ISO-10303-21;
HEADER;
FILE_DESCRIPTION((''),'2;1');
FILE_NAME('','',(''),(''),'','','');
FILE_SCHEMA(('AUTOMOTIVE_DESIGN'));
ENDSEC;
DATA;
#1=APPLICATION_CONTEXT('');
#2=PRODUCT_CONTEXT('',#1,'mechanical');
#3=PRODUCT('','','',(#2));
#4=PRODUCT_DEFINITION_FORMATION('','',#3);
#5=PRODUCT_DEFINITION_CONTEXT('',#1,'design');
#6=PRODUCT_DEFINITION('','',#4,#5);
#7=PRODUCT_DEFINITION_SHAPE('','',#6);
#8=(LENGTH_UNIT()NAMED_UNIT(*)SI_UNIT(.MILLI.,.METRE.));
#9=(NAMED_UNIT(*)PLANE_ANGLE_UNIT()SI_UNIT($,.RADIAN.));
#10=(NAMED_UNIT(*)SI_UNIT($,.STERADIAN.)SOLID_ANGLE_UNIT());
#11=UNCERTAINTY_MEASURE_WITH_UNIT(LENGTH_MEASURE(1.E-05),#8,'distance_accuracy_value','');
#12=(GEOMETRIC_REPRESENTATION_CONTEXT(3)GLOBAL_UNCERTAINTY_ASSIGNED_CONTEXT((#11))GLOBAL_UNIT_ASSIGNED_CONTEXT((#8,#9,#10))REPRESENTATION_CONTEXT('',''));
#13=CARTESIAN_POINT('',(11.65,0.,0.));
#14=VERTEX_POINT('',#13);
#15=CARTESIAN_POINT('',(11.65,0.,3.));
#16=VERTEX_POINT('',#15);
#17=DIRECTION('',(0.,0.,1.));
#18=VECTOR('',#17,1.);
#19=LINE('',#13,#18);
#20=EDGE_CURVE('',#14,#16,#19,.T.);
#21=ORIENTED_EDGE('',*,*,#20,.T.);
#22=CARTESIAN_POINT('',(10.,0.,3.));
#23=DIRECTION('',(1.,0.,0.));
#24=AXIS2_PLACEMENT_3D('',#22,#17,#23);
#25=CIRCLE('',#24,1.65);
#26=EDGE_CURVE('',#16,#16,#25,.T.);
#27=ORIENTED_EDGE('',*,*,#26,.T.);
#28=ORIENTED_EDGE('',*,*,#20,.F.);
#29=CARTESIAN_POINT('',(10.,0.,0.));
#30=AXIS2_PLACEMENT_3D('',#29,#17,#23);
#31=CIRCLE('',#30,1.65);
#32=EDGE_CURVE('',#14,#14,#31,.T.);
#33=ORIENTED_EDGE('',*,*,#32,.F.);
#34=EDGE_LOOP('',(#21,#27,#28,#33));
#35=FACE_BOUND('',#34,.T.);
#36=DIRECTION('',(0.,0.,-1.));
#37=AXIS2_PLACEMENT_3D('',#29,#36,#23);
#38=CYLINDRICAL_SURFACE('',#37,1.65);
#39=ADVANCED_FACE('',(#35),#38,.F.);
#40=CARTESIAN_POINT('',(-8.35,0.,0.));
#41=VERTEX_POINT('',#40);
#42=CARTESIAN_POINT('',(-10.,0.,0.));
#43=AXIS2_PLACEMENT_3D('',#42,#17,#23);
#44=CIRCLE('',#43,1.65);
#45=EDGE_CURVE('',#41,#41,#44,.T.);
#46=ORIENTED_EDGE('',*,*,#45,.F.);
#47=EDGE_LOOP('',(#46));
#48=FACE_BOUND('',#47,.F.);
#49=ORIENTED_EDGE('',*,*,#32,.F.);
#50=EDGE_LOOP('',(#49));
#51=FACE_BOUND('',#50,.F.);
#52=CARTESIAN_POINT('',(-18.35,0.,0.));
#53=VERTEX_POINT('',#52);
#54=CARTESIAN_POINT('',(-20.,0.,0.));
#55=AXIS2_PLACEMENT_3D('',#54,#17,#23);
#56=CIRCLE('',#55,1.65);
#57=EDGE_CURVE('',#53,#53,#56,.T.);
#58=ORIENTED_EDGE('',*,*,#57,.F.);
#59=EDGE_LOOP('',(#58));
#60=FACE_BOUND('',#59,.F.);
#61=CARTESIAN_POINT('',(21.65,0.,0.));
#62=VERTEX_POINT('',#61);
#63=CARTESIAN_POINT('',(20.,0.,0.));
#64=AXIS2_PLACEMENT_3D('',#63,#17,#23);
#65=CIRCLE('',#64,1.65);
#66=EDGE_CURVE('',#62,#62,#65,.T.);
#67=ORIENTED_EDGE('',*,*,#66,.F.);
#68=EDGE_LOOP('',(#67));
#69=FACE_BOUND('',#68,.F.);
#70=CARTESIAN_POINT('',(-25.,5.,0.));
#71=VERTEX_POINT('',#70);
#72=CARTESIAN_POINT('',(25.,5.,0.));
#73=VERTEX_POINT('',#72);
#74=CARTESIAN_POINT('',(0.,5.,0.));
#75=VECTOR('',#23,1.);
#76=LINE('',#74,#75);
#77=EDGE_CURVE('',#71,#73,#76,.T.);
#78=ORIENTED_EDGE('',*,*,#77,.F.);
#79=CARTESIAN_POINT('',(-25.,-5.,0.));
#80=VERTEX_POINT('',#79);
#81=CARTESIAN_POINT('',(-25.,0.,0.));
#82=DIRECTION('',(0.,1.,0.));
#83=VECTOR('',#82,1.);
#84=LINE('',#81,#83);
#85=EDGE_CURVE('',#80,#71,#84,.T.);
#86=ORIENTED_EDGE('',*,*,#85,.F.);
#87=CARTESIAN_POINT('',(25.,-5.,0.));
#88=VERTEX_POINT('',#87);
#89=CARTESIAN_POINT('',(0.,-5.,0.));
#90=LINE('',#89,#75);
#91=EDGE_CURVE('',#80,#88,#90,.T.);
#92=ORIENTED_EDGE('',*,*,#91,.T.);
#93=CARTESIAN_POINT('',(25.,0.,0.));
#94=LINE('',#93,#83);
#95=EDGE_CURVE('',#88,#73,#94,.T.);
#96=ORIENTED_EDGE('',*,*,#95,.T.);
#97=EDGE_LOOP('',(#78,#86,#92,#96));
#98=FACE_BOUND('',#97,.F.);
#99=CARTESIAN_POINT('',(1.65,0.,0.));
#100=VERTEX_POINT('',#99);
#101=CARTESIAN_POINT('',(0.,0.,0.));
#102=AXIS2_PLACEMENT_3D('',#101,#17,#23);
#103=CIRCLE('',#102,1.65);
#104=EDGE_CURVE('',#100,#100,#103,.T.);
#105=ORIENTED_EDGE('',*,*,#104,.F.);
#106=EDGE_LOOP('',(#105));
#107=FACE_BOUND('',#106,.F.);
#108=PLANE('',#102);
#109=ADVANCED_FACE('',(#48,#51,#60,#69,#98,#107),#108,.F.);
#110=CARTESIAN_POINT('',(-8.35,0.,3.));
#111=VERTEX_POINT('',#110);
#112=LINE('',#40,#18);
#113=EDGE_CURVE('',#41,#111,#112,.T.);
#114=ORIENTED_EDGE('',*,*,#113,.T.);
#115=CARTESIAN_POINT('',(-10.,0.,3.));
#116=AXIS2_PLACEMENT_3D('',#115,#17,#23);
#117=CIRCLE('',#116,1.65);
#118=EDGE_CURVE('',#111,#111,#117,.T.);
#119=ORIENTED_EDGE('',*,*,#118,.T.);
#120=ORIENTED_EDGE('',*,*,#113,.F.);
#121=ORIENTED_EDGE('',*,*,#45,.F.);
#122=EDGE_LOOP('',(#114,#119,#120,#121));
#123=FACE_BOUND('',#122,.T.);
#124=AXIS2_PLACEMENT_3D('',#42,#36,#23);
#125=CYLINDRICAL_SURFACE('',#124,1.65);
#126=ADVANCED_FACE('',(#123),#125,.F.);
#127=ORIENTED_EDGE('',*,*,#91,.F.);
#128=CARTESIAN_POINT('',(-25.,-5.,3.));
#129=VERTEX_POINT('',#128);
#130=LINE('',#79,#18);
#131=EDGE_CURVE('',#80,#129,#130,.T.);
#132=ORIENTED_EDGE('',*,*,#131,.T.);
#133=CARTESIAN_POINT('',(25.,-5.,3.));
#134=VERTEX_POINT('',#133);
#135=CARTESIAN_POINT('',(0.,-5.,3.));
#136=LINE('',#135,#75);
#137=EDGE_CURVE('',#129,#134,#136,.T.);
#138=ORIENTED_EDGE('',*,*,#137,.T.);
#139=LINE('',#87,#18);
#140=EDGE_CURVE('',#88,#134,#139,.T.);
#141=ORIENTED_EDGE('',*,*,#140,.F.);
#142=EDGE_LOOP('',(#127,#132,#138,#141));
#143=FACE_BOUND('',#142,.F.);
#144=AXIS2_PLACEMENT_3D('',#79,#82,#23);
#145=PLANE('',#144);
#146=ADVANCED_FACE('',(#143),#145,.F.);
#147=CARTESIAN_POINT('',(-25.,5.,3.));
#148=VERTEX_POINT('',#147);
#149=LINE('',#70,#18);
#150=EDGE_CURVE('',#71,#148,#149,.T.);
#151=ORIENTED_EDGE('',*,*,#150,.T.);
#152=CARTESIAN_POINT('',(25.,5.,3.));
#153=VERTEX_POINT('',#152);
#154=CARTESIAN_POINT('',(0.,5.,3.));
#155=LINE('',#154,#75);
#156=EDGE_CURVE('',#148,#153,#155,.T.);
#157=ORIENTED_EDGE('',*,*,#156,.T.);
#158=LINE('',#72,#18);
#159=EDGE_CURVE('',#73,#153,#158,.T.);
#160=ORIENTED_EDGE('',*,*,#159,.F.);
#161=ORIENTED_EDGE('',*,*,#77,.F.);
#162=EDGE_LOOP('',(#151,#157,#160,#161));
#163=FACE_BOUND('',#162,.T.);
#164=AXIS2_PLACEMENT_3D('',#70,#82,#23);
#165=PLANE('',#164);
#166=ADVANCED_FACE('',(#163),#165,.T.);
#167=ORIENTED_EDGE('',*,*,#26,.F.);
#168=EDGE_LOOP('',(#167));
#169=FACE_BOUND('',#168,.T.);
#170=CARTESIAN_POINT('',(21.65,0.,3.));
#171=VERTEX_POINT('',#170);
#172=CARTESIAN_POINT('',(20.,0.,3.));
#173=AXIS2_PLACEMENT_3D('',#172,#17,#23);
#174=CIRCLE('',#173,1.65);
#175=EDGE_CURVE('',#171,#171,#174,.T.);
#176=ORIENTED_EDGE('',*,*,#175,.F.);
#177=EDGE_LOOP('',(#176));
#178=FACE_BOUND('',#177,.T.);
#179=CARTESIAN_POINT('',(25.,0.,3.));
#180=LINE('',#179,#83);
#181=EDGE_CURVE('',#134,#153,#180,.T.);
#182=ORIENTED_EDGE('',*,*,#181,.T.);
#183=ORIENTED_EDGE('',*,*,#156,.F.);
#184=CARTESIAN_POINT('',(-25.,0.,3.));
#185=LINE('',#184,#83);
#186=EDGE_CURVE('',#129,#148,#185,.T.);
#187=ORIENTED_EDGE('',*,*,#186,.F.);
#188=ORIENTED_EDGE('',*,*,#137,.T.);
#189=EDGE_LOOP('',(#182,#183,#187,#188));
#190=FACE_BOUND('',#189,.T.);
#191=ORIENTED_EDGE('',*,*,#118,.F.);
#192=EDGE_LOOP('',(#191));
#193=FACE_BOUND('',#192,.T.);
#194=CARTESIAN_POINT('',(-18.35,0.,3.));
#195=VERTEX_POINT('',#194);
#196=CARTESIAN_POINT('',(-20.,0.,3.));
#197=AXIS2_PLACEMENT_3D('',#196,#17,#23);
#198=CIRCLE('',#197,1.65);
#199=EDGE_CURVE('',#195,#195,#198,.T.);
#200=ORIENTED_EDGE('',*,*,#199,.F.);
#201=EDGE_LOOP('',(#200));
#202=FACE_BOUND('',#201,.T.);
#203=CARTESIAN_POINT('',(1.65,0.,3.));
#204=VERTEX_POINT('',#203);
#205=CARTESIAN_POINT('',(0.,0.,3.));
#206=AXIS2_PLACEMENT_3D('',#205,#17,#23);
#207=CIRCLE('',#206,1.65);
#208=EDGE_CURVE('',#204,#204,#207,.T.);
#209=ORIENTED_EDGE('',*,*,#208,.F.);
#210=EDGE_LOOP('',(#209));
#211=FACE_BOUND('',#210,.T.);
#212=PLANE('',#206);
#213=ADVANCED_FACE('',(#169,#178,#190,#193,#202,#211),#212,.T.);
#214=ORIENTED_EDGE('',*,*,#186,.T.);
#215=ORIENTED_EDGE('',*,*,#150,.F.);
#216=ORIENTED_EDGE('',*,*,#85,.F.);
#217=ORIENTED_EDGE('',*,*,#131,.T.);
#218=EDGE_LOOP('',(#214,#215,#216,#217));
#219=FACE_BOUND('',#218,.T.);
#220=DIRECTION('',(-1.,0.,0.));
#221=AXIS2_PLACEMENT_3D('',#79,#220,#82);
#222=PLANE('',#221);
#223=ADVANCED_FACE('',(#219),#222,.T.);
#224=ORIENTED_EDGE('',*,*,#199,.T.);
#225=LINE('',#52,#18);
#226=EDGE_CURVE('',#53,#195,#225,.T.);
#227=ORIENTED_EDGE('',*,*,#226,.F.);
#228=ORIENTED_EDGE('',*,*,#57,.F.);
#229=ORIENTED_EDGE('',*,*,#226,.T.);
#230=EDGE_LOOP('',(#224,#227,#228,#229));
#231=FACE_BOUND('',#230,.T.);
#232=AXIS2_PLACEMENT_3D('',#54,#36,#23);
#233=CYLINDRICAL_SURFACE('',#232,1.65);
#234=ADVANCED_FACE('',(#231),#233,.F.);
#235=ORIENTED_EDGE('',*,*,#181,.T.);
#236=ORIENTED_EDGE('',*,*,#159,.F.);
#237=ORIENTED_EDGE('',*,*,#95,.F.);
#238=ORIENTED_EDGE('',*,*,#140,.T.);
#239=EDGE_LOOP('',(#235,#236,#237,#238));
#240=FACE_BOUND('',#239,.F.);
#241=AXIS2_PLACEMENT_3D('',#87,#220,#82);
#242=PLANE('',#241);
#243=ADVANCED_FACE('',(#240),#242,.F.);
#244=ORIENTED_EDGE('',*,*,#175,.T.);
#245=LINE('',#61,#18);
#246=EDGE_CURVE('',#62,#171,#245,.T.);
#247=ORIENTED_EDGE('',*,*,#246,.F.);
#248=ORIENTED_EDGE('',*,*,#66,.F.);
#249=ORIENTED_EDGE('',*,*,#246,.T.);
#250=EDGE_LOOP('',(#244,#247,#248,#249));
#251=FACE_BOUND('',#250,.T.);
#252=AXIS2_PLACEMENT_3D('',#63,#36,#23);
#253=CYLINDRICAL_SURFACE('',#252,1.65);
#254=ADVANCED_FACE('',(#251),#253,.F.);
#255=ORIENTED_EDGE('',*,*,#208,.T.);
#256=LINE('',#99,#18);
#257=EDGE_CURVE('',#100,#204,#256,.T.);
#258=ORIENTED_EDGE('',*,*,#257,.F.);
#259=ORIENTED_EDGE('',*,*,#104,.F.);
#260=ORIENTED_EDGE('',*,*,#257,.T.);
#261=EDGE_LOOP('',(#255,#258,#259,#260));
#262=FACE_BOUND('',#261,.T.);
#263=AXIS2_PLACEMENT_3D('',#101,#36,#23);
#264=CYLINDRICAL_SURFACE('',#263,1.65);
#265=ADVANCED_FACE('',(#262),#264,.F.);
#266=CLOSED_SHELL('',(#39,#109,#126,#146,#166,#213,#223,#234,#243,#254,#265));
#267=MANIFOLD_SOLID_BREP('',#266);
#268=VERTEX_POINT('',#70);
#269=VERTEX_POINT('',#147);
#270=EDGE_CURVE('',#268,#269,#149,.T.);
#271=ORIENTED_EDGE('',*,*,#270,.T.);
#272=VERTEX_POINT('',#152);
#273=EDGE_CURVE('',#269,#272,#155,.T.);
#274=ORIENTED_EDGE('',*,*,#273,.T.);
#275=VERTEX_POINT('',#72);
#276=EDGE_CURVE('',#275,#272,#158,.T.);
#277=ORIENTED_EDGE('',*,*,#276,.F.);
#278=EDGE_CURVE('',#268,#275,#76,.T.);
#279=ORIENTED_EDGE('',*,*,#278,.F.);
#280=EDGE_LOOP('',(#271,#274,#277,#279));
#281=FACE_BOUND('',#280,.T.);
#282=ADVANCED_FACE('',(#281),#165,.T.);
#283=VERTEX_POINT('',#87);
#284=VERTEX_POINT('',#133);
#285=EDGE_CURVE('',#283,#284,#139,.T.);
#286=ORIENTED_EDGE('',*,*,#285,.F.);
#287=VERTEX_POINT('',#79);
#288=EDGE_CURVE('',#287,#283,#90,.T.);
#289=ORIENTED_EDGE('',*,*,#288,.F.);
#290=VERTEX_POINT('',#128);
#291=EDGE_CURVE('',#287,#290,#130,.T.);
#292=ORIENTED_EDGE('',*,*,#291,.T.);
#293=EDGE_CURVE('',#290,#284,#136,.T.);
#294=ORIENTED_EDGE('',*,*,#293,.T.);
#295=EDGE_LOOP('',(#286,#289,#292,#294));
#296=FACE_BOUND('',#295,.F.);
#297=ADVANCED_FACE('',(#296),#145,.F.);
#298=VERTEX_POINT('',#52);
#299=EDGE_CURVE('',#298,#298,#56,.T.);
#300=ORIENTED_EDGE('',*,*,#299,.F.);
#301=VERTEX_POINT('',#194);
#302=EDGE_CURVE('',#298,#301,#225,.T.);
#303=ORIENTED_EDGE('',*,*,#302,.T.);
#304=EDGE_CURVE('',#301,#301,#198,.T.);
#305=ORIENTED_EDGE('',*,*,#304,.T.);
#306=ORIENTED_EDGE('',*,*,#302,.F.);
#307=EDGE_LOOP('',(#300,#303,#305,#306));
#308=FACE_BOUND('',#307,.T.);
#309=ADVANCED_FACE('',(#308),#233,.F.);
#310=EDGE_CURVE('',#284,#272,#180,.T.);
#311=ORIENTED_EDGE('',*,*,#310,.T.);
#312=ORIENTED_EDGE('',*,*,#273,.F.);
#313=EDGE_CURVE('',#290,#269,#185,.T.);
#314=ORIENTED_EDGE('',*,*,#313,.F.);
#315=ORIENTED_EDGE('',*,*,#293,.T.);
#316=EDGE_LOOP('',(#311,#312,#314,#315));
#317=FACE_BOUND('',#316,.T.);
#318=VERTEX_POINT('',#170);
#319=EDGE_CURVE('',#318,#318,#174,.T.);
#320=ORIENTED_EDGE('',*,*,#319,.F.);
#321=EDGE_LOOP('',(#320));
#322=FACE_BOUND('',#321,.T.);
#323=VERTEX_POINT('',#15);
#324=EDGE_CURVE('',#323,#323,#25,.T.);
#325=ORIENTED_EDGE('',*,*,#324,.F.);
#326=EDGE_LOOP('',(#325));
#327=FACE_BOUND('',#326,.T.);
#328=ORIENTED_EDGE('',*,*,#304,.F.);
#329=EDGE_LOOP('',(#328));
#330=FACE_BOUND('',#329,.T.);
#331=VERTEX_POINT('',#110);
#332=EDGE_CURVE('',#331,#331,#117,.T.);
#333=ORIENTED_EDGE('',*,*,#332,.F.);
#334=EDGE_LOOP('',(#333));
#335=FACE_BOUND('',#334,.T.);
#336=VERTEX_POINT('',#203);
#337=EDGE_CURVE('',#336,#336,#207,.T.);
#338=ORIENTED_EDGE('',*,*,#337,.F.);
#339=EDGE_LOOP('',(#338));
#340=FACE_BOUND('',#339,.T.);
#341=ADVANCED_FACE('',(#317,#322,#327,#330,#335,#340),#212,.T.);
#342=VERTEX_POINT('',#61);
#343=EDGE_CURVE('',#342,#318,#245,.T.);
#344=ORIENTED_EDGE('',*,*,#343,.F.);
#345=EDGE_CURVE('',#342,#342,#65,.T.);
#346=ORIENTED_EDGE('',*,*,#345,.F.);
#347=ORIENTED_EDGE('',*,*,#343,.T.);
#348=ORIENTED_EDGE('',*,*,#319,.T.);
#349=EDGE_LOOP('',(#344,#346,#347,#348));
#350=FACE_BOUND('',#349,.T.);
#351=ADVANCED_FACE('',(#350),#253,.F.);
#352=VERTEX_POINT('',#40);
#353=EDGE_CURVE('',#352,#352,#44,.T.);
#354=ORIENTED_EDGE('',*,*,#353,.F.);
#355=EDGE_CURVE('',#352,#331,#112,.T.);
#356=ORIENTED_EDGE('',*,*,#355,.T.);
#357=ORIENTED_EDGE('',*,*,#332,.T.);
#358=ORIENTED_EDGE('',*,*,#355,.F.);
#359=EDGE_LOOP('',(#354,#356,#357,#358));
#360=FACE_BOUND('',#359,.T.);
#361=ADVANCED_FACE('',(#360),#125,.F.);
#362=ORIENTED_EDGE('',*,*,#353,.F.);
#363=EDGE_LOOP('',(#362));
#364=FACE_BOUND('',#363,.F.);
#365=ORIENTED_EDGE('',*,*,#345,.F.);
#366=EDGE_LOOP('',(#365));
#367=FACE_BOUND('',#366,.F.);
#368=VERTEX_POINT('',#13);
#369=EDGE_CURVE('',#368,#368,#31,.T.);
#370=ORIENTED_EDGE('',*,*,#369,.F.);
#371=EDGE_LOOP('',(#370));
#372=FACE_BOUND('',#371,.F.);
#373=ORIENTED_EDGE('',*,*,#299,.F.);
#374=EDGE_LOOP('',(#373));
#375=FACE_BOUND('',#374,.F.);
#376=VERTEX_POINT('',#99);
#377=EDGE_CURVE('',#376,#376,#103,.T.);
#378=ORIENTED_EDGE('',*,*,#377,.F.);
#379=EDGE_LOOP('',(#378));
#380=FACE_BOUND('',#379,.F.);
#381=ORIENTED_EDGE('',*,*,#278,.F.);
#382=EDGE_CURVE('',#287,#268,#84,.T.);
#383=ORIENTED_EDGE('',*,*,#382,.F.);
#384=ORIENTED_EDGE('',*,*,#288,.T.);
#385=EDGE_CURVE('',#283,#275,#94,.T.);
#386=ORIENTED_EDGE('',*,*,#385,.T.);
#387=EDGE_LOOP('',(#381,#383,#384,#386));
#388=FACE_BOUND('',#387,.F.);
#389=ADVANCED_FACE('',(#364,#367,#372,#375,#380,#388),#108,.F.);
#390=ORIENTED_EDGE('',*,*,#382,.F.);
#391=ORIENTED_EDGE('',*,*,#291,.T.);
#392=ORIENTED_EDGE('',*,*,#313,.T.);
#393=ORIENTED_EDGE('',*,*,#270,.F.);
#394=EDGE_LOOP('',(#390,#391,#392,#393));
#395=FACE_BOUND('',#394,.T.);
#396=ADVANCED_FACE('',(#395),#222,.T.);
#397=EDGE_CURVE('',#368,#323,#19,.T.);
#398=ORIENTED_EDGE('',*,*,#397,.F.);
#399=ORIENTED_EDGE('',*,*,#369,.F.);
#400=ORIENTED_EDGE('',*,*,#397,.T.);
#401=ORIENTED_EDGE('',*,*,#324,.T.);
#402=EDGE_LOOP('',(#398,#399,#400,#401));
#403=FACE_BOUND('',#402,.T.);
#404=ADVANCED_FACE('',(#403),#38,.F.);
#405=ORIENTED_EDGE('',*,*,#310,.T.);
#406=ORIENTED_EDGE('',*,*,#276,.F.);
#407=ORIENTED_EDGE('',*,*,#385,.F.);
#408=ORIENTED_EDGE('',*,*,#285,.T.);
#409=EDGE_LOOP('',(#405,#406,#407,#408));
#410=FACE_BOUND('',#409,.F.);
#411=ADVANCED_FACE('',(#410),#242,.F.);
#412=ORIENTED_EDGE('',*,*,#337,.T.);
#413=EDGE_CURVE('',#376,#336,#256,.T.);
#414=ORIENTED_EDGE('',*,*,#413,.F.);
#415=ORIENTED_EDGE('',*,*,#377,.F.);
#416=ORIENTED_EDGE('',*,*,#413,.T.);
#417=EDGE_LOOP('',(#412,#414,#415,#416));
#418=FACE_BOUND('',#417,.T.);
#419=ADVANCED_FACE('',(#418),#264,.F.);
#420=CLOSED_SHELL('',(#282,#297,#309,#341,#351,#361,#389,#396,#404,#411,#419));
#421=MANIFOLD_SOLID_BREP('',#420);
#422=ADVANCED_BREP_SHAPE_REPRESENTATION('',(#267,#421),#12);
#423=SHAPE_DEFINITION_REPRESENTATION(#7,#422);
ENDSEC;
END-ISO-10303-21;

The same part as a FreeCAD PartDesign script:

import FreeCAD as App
import Part
import Sketcher
from FreeCAD import Vector

doc = App.newDocument("Part")
body = doc.addObject("PartDesign::Body", "Body")

# Sketch on XY plane
sketch1 = doc.addObject("Sketcher::SketchObject", "Sketch")
body.addObject(sketch1)
sketch1.AttachmentSupport = (doc.XY_Plane, [""])
sketch1.MapMode = "FlatFace"
sketch1.addGeometry(Part.LineSegment(Vector(-25, 5, 0), Vector(-25, -5, 0)), False)
sketch1.addGeometry(Part.LineSegment(Vector(-25, -5, 0), Vector(25, -5, 0)), False)
sketch1.addGeometry(Part.LineSegment(Vector(25, -5, 0), Vector(25, 5, 0)), False)
sketch1.addGeometry(Part.LineSegment(Vector(25, 5, 0), Vector(-25, 5, 0)), False)
sketch1.addGeometry(Part.Circle(Vector(-20, 0, 0), Vector(0, 0, 1), 1.6), False)
sketch1.addGeometry(Part.Circle(Vector(-10, 0, 0), Vector(0, 0, 1), 1.6), False)
sketch1.addGeometry(Part.Circle(Vector(0, 0, 0), Vector(0, 0, 1), 1.6), False)
sketch1.addGeometry(Part.Circle(Vector(10, 0, 0), Vector(0, 0, 1), 1.6), False)
sketch1.addGeometry(Part.Circle(Vector(20, 0, 0), Vector(0, 0, 1), 1.6), False)
sketch1.addConstraint(Sketcher.Constraint("Coincident", 0, 2, 1, 1))
sketch1.addConstraint(Sketcher.Constraint("Coincident", 1, 2, 2, 1))
sketch1.addConstraint(Sketcher.Constraint("Coincident", 2, 2, 3, 1))
sketch1.addConstraint(Sketcher.Constraint("Coincident", 3, 2, 0, 1))
sketch1.addConstraint(Sketcher.Constraint("Vertical", 0))
sketch1.addConstraint(Sketcher.Constraint("Horizontal", 1))
sketch1.addConstraint(Sketcher.Constraint("Vertical", 2))
sketch1.addConstraint(Sketcher.Constraint("Horizontal", 3))
sketch1.addConstraint(Sketcher.Constraint("Coincident", 6, 3, -1, 1))
sketch1.addConstraint(Sketcher.Constraint("Equal", 4, 5))
sketch1.addConstraint(Sketcher.Constraint("Equal", 5, 6))
sketch1.addConstraint(Sketcher.Constraint("Equal", 6, 7))
sketch1.addConstraint(Sketcher.Constraint("Equal", 7, 8))
sketch1.addConstraint(Sketcher.Constraint("Symmetric", 5, 3, 7, 3, -1, 1))
sketch1.addConstraint(Sketcher.Constraint("Symmetric", 4, 3, 8, 3, -1, 1))
sketch1.addConstraint(Sketcher.Constraint("Symmetric", 0, 2, 2, 2, -1, 1))
sketch1.addConstraint(Sketcher.Constraint("PointOnObject", 4, 3, -1))
sketch1.addConstraint(Sketcher.Constraint("PointOnObject", 5, 3, -1))
sketch1.addConstraint(Sketcher.Constraint("Diameter", 4, 3.3))
sketch1.addConstraint(Sketcher.Constraint("DistanceX", 1, 1, 1, 2, 50.0))
sketch1.addConstraint(Sketcher.Constraint("DistanceY", 0, 2, 0, 1, 10.0))
sketch1.addConstraint(Sketcher.Constraint("DistanceX", 4, 3, -1, 1, 20.0))
sketch1.addConstraint(Sketcher.Constraint("DistanceX", 5, 3, -1, 1, 10.0))
pad1 = doc.addObject("PartDesign::Pad", "Pad")
body.addObject(pad1)
pad1.Profile = sketch1
pad1.Length = 3
body2 = doc.addObject("PartDesign::Body", "Body001")

# Sketch on XY plane
sketch2 = doc.addObject("Sketcher::SketchObject", "Sketch001")
body2.addObject(sketch2)
sketch2.AttachmentSupport = (doc.getObject("XY_Plane001"), [""])
sketch2.MapMode = "FlatFace"
sketch2.addGeometry(Part.LineSegment(Vector(-25, 5, 0), Vector(-25, -5, 0)), False)
sketch2.addGeometry(Part.LineSegment(Vector(-25, -5, 0), Vector(25, -5, 0)), False)
sketch2.addGeometry(Part.LineSegment(Vector(25, -5, 0), Vector(25, 5, 0)), False)
sketch2.addGeometry(Part.LineSegment(Vector(25, 5, 0), Vector(-25, 5, 0)), False)
sketch2.addGeometry(Part.Circle(Vector(-20, 0, 0), Vector(0, 0, 1), 1.6), False)
sketch2.addGeometry(Part.Circle(Vector(-10, 0, 0), Vector(0, 0, 1), 1.6), False)
sketch2.addGeometry(Part.Circle(Vector(0, 0, 0), Vector(0, 0, 1), 1.6), False)
sketch2.addGeometry(Part.Circle(Vector(10, 0, 0), Vector(0, 0, 1), 1.6), False)
sketch2.addGeometry(Part.Circle(Vector(20, 0, 0), Vector(0, 0, 1), 1.6), False)
sketch2.addConstraint(Sketcher.Constraint("Coincident", 0, 2, 1, 1))
sketch2.addConstraint(Sketcher.Constraint("Coincident", 1, 2, 2, 1))
sketch2.addConstraint(Sketcher.Constraint("Coincident", 2, 2, 3, 1))
sketch2.addConstraint(Sketcher.Constraint("Coincident", 3, 2, 0, 1))
sketch2.addConstraint(Sketcher.Constraint("Vertical", 0))
sketch2.addConstraint(Sketcher.Constraint("Horizontal", 1))
sketch2.addConstraint(Sketcher.Constraint("Vertical", 2))
sketch2.addConstraint(Sketcher.Constraint("Horizontal", 3))
sketch2.addConstraint(Sketcher.Constraint("Coincident", 6, 3, -1, 1))
sketch2.addConstraint(Sketcher.Constraint("Equal", 4, 5))
sketch2.addConstraint(Sketcher.Constraint("Equal", 5, 6))
sketch2.addConstraint(Sketcher.Constraint("Equal", 6, 7))
sketch2.addConstraint(Sketcher.Constraint("Equal", 7, 8))
sketch2.addConstraint(Sketcher.Constraint("Symmetric", 5, 3, 7, 3, -1, 1))
sketch2.addConstraint(Sketcher.Constraint("Symmetric", 4, 3, 8, 3, -1, 1))
sketch2.addConstraint(Sketcher.Constraint("Symmetric", 0, 2, 2, 2, -1, 1))
sketch2.addConstraint(Sketcher.Constraint("PointOnObject", 4, 3, -1))
sketch2.addConstraint(Sketcher.Constraint("PointOnObject", 5, 3, -1))
sketch2.addConstraint(Sketcher.Constraint("Diameter", 4, 3.3))
sketch2.addConstraint(Sketcher.Constraint("DistanceX", 1, 1, 1, 2, 50.0))
sketch2.addConstraint(Sketcher.Constraint("DistanceY", 0, 2, 0, 1, 10.0))
sketch2.addConstraint(Sketcher.Constraint("DistanceX", 4, 3, -1, 1, 20.0))
sketch2.addConstraint(Sketcher.Constraint("DistanceX", 5, 3, -1, 1, 10.0))
pad2 = doc.addObject("PartDesign::Pad", "Pad001")
body2.addObject(pad2)
pad2.Profile = sketch2
pad2.Length = 3

doc.recompute()
